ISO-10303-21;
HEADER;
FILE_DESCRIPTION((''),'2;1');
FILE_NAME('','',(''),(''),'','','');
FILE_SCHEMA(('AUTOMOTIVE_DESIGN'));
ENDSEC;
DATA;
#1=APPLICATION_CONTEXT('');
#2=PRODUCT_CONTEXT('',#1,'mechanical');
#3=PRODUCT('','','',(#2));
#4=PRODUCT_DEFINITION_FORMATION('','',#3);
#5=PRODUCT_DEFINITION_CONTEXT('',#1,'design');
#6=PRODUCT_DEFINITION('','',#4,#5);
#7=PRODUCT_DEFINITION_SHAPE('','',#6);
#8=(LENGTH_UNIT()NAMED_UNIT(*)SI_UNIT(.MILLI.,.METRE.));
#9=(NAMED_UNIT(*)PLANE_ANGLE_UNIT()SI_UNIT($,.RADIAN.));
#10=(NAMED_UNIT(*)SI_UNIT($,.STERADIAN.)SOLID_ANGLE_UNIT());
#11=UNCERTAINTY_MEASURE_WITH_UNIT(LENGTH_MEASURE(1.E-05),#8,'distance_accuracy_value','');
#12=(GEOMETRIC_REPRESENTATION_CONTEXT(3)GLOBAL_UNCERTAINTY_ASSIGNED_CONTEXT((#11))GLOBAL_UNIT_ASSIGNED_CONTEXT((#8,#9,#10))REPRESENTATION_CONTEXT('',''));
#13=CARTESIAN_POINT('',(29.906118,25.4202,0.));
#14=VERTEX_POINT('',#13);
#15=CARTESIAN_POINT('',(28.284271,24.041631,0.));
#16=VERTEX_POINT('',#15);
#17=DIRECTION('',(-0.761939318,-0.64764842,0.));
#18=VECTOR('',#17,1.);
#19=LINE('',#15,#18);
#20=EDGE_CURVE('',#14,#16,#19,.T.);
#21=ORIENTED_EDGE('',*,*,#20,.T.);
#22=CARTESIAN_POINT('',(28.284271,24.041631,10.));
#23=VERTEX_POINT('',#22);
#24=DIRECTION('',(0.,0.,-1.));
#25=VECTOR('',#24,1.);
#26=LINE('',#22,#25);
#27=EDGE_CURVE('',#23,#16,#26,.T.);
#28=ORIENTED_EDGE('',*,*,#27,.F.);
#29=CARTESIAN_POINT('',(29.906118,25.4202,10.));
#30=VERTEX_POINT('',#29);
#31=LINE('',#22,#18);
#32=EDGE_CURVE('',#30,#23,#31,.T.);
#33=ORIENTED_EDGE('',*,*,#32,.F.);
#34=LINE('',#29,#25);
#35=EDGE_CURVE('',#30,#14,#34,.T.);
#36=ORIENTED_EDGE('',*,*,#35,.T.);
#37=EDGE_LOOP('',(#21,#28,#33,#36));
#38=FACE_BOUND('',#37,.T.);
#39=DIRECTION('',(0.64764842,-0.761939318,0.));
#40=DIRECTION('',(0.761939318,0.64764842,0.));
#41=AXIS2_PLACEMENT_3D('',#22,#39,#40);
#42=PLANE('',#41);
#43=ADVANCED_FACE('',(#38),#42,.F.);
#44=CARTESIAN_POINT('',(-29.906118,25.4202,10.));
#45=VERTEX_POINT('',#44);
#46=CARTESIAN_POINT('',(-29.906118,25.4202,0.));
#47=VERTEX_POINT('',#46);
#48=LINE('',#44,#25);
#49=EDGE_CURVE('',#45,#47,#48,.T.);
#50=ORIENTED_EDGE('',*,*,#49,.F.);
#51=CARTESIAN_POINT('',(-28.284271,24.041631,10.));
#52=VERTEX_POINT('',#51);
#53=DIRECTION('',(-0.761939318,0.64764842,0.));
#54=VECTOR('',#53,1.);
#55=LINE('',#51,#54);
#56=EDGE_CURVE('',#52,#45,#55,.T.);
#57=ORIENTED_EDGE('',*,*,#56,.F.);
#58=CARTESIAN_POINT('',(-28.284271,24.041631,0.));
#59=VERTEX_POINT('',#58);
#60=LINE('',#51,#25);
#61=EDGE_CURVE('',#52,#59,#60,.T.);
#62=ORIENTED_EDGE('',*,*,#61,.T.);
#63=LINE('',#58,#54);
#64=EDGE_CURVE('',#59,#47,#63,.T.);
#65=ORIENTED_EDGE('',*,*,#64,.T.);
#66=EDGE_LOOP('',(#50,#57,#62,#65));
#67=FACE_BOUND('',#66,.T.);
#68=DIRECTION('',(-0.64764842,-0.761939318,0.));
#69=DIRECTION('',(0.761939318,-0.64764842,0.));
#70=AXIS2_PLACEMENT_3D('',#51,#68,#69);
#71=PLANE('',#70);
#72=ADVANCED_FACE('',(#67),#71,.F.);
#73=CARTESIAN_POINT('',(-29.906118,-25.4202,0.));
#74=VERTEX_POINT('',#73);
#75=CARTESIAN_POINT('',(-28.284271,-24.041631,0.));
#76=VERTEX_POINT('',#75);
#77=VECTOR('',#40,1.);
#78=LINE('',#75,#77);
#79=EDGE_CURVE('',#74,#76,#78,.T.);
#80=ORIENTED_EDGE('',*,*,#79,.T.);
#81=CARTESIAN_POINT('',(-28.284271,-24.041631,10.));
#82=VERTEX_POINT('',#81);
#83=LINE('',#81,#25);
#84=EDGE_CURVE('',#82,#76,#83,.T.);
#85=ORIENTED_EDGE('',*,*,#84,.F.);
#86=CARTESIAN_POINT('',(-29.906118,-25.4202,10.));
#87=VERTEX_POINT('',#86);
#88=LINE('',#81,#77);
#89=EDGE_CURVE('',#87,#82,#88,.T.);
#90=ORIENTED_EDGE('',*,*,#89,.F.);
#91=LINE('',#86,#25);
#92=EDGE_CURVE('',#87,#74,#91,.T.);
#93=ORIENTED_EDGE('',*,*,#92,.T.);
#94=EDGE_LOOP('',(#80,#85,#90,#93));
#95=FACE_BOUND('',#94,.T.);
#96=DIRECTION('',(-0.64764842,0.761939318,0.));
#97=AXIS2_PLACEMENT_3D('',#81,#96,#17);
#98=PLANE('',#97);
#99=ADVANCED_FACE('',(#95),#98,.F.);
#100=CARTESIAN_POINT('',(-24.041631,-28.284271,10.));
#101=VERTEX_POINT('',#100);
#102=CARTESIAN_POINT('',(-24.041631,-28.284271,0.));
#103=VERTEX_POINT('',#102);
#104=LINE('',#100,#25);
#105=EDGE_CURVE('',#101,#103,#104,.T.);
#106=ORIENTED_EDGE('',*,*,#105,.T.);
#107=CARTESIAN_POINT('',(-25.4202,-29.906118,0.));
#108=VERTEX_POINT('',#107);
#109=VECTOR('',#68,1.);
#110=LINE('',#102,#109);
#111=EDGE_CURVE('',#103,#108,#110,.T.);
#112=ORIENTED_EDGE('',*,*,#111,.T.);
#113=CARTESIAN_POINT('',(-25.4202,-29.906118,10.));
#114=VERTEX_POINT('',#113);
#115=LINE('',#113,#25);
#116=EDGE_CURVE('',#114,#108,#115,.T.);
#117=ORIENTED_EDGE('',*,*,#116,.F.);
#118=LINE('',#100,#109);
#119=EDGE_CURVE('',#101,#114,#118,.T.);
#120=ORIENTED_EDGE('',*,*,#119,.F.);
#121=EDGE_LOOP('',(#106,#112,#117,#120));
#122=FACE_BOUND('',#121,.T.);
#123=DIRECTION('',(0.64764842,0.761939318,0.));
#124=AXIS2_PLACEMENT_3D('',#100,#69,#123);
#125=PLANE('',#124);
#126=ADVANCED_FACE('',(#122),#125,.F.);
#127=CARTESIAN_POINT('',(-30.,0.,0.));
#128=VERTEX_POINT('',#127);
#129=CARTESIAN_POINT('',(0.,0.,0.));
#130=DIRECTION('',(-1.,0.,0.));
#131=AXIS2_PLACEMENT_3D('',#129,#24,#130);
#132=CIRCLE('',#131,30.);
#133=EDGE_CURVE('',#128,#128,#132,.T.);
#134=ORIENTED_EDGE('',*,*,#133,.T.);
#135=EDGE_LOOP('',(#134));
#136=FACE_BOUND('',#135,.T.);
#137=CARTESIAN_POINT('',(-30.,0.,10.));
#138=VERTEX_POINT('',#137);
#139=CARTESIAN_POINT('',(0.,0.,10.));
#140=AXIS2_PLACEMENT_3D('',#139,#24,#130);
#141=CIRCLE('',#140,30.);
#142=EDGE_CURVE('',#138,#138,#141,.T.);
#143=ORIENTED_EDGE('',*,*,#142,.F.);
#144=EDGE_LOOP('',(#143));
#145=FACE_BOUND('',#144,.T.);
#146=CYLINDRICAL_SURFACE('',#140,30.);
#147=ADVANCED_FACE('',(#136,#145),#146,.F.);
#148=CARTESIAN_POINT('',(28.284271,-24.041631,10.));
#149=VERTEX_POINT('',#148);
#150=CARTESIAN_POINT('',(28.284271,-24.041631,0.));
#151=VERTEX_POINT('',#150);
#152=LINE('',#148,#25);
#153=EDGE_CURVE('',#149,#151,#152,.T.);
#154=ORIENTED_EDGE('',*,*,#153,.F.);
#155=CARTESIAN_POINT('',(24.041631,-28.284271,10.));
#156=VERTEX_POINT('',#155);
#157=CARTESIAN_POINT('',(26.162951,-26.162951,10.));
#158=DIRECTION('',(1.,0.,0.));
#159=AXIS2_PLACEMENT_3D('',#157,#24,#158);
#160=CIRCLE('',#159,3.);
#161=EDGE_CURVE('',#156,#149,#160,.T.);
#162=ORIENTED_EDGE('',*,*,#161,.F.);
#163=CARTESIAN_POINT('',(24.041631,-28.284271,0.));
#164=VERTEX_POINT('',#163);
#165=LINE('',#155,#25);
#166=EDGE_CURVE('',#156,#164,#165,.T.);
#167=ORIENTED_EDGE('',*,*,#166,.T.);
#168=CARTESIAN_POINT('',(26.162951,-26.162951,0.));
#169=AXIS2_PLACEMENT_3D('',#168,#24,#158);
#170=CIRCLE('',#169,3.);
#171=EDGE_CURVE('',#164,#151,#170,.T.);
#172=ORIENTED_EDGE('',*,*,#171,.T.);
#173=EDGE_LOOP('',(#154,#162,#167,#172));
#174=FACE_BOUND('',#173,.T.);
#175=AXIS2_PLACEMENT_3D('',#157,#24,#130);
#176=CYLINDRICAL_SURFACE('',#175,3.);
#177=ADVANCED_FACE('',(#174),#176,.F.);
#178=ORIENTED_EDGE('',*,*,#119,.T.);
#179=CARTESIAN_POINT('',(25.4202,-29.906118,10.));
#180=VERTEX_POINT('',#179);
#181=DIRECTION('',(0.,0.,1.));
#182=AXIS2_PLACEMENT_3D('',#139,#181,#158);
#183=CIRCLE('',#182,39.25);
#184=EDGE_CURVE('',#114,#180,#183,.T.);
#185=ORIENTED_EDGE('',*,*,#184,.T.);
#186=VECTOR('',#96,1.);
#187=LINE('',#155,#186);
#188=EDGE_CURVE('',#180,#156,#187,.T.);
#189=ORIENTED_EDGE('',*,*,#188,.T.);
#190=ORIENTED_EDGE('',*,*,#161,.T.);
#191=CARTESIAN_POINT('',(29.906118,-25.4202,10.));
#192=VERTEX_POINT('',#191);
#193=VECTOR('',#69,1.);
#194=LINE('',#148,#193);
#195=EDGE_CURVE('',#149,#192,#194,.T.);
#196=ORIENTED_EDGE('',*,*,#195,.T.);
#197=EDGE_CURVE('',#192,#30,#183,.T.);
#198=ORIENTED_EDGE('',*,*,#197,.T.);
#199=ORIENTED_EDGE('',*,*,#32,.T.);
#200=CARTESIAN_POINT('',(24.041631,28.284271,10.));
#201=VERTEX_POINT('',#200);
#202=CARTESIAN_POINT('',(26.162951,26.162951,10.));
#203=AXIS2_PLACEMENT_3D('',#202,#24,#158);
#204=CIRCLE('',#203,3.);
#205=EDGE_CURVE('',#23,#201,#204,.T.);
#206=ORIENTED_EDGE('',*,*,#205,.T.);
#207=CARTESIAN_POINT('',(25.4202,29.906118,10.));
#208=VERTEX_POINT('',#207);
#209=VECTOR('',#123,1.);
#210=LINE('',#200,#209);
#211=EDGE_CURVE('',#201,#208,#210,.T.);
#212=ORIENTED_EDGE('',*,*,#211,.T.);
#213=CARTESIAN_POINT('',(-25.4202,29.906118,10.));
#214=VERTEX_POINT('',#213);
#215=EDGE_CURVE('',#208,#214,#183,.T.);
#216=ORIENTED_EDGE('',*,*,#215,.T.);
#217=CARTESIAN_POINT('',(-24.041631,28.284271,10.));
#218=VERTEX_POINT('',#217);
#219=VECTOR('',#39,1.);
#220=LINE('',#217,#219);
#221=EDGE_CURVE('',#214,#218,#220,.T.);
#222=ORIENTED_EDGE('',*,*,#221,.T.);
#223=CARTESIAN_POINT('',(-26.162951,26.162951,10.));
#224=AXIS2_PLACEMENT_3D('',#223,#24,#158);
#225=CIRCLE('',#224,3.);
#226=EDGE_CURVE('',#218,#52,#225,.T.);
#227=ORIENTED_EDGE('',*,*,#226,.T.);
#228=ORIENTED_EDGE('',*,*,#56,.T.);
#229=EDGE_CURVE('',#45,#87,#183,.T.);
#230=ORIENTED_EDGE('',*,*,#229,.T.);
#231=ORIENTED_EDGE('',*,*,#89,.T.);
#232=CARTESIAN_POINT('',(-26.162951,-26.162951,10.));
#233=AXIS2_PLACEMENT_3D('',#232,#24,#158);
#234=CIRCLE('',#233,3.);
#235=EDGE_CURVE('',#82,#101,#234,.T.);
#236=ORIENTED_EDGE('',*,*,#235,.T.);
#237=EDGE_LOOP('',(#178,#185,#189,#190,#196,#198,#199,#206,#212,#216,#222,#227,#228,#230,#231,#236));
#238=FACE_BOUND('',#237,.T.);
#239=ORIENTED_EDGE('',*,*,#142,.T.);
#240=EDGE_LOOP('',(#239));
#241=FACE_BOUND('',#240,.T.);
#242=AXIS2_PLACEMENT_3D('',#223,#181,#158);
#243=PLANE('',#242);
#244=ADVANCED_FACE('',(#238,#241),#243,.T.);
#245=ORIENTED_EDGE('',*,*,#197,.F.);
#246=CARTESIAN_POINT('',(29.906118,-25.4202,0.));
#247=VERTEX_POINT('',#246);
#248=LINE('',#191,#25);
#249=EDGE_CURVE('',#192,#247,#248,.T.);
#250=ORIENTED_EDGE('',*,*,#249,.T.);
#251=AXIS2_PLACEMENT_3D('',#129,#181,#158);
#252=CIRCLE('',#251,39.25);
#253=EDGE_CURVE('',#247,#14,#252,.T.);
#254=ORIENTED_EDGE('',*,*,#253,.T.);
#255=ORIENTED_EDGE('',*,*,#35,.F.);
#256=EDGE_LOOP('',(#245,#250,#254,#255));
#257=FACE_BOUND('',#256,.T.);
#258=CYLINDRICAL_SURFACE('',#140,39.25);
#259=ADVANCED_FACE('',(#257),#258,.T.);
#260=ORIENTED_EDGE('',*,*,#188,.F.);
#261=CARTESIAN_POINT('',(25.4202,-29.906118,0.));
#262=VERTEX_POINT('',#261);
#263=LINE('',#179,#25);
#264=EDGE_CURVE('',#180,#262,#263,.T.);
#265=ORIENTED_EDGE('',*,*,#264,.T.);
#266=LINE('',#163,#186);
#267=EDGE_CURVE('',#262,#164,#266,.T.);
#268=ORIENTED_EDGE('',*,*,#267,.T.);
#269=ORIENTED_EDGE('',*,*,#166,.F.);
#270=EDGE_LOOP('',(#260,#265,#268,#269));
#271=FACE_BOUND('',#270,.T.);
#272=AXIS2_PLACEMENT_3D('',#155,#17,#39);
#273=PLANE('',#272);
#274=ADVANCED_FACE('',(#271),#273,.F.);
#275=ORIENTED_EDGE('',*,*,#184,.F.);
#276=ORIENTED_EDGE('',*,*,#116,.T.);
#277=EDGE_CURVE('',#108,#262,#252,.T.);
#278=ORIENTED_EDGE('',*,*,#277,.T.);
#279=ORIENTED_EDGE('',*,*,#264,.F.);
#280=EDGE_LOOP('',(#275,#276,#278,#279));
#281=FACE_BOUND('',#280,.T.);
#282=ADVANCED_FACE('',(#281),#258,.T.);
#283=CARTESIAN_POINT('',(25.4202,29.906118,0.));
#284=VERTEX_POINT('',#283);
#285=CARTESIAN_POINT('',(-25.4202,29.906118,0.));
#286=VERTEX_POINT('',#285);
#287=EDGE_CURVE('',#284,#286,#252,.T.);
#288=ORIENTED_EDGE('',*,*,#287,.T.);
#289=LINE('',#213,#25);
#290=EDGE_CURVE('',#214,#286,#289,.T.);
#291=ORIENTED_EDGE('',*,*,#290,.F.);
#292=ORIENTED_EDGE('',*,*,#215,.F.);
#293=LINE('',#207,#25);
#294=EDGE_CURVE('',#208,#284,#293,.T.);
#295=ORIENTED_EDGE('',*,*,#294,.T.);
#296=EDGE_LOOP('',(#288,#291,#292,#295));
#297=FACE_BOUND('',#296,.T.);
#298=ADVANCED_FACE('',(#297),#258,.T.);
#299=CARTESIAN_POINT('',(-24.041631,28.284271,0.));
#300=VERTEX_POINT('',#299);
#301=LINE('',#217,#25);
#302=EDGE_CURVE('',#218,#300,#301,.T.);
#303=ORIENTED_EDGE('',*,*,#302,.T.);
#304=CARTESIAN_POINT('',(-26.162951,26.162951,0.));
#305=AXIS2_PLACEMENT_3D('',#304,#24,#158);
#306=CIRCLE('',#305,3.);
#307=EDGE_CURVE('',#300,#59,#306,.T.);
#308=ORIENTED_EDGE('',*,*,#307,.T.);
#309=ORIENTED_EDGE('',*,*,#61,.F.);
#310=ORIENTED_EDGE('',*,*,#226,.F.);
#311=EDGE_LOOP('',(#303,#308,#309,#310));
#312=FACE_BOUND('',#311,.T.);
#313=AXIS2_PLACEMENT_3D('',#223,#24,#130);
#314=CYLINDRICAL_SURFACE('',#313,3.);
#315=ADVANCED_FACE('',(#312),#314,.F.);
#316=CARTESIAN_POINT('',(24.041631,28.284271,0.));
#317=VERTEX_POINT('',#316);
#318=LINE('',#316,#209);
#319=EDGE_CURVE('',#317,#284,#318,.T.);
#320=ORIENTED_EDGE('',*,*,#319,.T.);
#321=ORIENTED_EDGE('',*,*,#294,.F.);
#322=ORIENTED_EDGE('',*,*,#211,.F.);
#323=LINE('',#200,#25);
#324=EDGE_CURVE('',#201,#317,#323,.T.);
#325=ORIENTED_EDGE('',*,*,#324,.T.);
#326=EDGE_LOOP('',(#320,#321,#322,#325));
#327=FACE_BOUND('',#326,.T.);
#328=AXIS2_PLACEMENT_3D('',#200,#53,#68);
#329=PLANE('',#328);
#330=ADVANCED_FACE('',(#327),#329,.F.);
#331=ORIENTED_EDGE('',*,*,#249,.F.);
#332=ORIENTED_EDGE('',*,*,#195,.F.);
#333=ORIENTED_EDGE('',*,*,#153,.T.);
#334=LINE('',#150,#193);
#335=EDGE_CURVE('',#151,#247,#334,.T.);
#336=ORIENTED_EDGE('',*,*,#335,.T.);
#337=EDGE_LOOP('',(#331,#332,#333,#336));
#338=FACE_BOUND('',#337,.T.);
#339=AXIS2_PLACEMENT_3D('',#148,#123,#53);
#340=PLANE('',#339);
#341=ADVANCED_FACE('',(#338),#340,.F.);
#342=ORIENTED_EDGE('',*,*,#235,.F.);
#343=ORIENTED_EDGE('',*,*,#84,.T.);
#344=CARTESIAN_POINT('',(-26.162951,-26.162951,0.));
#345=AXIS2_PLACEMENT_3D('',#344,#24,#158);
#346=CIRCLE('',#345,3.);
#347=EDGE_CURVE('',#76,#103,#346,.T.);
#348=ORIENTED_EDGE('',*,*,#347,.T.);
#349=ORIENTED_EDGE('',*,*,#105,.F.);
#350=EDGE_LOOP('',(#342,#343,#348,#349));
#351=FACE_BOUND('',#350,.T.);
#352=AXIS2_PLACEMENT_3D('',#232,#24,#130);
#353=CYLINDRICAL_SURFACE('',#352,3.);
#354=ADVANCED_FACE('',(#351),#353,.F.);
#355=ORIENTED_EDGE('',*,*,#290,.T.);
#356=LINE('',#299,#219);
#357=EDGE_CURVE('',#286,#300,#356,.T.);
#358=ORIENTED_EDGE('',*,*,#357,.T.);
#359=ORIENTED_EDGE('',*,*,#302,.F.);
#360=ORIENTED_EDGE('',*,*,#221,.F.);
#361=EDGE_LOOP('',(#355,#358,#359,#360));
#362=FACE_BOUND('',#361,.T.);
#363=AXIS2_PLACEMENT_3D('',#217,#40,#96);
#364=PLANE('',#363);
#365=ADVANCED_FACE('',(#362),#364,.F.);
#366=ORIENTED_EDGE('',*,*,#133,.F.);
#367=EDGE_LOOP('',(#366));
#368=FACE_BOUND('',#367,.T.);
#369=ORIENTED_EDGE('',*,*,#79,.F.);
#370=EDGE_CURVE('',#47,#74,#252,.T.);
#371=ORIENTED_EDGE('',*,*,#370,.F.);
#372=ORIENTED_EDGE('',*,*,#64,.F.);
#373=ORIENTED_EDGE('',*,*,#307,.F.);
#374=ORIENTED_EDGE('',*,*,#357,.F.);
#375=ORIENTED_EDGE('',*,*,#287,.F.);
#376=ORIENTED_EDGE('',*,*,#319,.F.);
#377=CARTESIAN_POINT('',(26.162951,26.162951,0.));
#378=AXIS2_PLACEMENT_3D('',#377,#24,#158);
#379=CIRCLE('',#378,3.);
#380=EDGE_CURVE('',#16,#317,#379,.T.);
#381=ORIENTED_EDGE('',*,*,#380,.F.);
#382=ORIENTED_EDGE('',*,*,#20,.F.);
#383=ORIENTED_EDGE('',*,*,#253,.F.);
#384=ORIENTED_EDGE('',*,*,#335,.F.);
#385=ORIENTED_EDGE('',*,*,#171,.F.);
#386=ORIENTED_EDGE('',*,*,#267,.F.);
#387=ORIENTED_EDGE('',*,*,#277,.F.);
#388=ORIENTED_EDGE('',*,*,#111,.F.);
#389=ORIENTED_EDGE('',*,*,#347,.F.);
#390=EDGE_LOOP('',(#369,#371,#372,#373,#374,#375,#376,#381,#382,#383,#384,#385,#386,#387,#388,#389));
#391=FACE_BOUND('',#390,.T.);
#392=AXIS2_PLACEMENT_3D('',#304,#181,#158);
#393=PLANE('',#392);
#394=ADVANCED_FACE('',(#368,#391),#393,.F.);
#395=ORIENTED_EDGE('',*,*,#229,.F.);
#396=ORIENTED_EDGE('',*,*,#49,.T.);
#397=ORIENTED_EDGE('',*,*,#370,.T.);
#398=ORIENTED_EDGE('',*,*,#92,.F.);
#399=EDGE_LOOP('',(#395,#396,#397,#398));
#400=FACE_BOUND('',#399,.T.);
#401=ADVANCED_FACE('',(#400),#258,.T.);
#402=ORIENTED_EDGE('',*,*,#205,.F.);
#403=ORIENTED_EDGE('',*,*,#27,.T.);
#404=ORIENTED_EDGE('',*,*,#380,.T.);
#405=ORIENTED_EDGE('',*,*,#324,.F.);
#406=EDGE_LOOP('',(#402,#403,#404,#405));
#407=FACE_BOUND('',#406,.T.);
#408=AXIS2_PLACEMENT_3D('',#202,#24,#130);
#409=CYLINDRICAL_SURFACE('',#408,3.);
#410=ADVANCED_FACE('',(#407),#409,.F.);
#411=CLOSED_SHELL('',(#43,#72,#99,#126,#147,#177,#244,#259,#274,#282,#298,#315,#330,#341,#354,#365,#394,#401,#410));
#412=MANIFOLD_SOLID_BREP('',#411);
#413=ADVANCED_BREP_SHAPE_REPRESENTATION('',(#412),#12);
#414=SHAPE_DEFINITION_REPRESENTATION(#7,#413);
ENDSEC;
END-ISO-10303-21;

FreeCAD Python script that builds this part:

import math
import FreeCAD as App
import Part
import Sketcher

doc = App.newDocument("Part")
body = doc.addObject("PartDesign::Body", "Body")

sketch1 = body.newObject("Sketcher::SketchObject", "Sketch")
sketch1.AttachmentSupport = (doc.getObject("XY_Plane"), [""])
sketch1.MapMode = "FlatFace"
sketch1.addGeometry([
    Part.LineSegment(App.Vector(-25.4, 29.9, 0), App.Vector(-24, 28.3, 0)),
    Part.ArcOfCircle(Part.Circle(App.Vector(-26.2, 26.2, 0), App.Vector(0, 0, 1), 3), math.radians(-135), math.radians(45)),
    Part.LineSegment(App.Vector(-28.3, 24, 0), App.Vector(-29.9, 25.4, 0)),
    Part.ArcOfCircle(Part.Circle(App.Vector(0, 0, 0), App.Vector(0, 0, 1), 39.2), math.radians(140), math.radians(220)),
    Part.LineSegment(App.Vector(-29.9, -25.4, 0), App.Vector(-28.3, -24, 0)),
    Part.ArcOfCircle(Part.Circle(App.Vector(-26.2, -26.2, 0), App.Vector(0, 0, 1), 3), math.radians(-45), math.radians(135)),
    Part.LineSegment(App.Vector(-24, -28.3, 0), App.Vector(-25.4, -29.9, 0)),
    Part.ArcOfCircle(Part.Circle(App.Vector(0, 0, 0), App.Vector(0, 0, 1), 39.2), math.radians(-130), math.radians(-50)),
    Part.LineSegment(App.Vector(25.4, -29.9, 0), App.Vector(24, -28.3, 0)),
    Part.ArcOfCircle(Part.Circle(App.Vector(26.2, -26.2, 0), App.Vector(0, 0, 1), 3), math.radians(45), math.radians(225)),
    Part.LineSegment(App.Vector(28.3, -24, 0), App.Vector(29.9, -25.4, 0)),
    Part.ArcOfCircle(Part.Circle(App.Vector(0, 0, 0), App.Vector(0, 0, 1), 39.2), math.radians(-40), math.radians(40)),
    Part.LineSegment(App.Vector(29.9, 25.4, 0), App.Vector(28.3, 24, 0)),
    Part.ArcOfCircle(Part.Circle(App.Vector(26.2, 26.2, 0), App.Vector(0, 0, 1), 3), math.radians(135), math.radians(315)),
    Part.LineSegment(App.Vector(24, 28.3, 0), App.Vector(25.4, 29.9, 0)),
    Part.ArcOfCircle(Part.Circle(App.Vector(0, 0, 0), App.Vector(0, 0, 1), 39.2), math.radians(50), math.radians(130)),
], False)
sketch1.addConstraint([
    Sketcher.Constraint("Coincident", 0, 2, 1, 2),
    Sketcher.Constraint("Coincident", 1, 1, 2, 1),
    Sketcher.Constraint("Coincident", 2, 2, 3, 1),
    Sketcher.Constraint("Coincident", 3, 2, 4, 1),
    Sketcher.Constraint("Coincident", 4, 2, 5, 2),
    Sketcher.Constraint("Coincident", 5, 1, 6, 1),
    Sketcher.Constraint("Coincident", 6, 2, 7, 1),
    Sketcher.Constraint("Coincident", 7, 2, 8, 1),
    Sketcher.Constraint("Coincident", 8, 2, 9, 2),
    Sketcher.Constraint("Coincident", 9, 1, 10, 1),
    Sketcher.Constraint("Coincident", 10, 2, 11, 1),
    Sketcher.Constraint("Coincident", 11, 2, 12, 1),
    Sketcher.Constraint("Coincident", 12, 2, 13, 2),
    Sketcher.Constraint("Coincident", 13, 1, 14, 1),
    Sketcher.Constraint("Coincident", 14, 2, 15, 1),
    Sketcher.Constraint("Coincident", 15, 2, 0, 1),
    Sketcher.Constraint("Coincident", 3, 3, -1, 1),
    Sketcher.Constraint("Coincident", 7, 3, -1, 1),
    Sketcher.Constraint("Coincident", 11, 3, -1, 1),
    Sketcher.Constraint("Coincident", 15, 3, -1, 1),
    Sketcher.Constraint("Equal", 1, 5),
    Sketcher.Constraint("Equal", 3, 7),
    Sketcher.Constraint("Equal", 5, 9),
    Sketcher.Constraint("Equal", 7, 11),
    Sketcher.Constraint("Equal", 9, 13),
    Sketcher.Constraint("Equal", 11, 15),
    Sketcher.Constraint("Symmetric", 1, 3, 9, 3, -1, 1),
    Sketcher.Constraint("Symmetric", 5, 3, 13, 3, -1, 1),
    Sketcher.Constraint("Symmetric", 5, 3, 9, 3, -2),
    Sketcher.Constraint("Perpendicular", 0, 4),
    Sketcher.Constraint("Perpendicular", 2, 6),
    Sketcher.Constraint("Perpendicular", 4, 8),
    Sketcher.Constraint("Perpendicular", 6, 10),
    Sketcher.Constraint("Perpendicular", 8, 12),
    Sketcher.Constraint("Perpendicular", 10, 14),
    Sketcher.Constraint("Horizontal", 6, 2, 7, 2),
    Sketcher.Constraint("Horizontal", 5, 1, 8, 2),
    Sketcher.Constraint("Horizontal", 4, 2, 9, 1),
    Sketcher.Constraint("Horizontal", 2, 2, 11, 2),
    Sketcher.Constraint("Horizontal", 0, 2, 13, 1),
    Sketcher.Constraint("Vertical", 1, 1, 4, 2),
    Sketcher.Constraint("Vertical", 0, 2, 5, 1),
    Sketcher.Constraint("Equal", 0, 2),
    Sketcher.Constraint("Radius", 1, 3.0),
    Sketcher.Constraint("Radius", 3, 39.25),
    Sketcher.Constraint("DistanceY", -1, 1, 2, 2, 25.4202),
    Sketcher.Constraint("DistanceX", 6, 2, -1, 1, 25.4202),
    Sketcher.Constraint("DistanceY", 5, 3, 1, 3, 52.325902),
    Sketcher.Constraint("DistanceX", 0, 2, -1, 1, 24.041631),
])
pad1 = body.newObject("PartDesign::Pad", "Pad")
pad1.Profile = sketch1
pad1.Length = 10

sketch2 = body.newObject("Sketcher::SketchObject", "Sketch001")
sketch2.AttachmentSupport = (doc.getObject("XY_Plane"), [""])
sketch2.MapMode = "FlatFace"
sketch2.addGeometry(Part.Circle(App.Vector(0, 0, 0), App.Vector(0, 0, 1), 30), False)
sketch2.addConstraint([
    Sketcher.Constraint("Coincident", 0, 3, -1, 1),
    Sketcher.Constraint("Diameter", 0, 60.0),
])
pocket1 = body.newObject("PartDesign::Pocket", "Pocket")
pocket1.Profile = sketch2
pocket1.Length = 10
pocket1.Reversed = True

doc.recompute()
